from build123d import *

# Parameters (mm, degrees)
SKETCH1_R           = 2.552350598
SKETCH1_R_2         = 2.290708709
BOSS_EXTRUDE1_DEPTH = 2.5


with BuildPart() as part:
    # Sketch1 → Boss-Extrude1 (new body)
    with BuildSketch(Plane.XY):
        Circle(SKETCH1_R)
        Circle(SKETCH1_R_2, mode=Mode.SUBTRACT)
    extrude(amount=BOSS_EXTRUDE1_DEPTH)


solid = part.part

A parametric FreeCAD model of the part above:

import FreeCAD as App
import Part
import Sketcher
from FreeCAD import Vector

doc = App.newDocument("Part")
body = doc.addObject("PartDesign::Body", "Body")

# Sketch on XY plane
sketch1 = doc.addObject("Sketcher::SketchObject", "Sketch")
body.addObject(sketch1)
sketch1.AttachmentSupport = (doc.XY_Plane, [""])
sketch1.MapMode = "FlatFace"
sketch1.addGeometry([
    Part.Circle(Vector(0, 0, 0), Vector(0, 0, 1), 2.6),
    Part.Circle(Vector(0, 0, 0), Vector(0, 0, 1), 2.3),
], False)
sketch1.addConstraint([
    Sketcher.Constraint("Coincident", 0, 3, -1, 1),
    Sketcher.Constraint("Coincident", 1, 3, -1, 1),
    Sketcher.Constraint("Diameter", 0, 5.104701),
    Sketcher.Constraint("Diameter", 1, 4.581417),
])
pad1 = doc.addObject("PartDesign::Pad", "Pad")
body.addObject(pad1)
pad1.Profile = sketch1
pad1.Length = 2.5

doc.recompute()
